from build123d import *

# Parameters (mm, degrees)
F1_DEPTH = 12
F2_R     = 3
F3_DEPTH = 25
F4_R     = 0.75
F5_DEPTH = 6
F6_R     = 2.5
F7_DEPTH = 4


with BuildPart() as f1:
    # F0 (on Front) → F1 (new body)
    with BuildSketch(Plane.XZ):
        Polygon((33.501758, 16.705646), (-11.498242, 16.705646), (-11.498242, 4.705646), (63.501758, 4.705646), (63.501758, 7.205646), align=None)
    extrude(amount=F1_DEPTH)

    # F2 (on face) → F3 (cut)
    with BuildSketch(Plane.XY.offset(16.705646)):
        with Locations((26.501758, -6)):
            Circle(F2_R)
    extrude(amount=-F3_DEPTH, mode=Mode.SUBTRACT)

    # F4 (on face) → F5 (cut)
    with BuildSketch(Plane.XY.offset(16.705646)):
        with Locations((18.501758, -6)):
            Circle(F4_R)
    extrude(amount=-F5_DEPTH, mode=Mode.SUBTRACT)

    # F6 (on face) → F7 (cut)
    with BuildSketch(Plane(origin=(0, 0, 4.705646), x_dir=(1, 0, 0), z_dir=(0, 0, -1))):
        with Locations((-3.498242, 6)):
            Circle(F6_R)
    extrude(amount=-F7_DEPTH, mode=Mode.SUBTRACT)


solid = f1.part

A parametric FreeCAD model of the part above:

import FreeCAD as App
import Part
import Sketcher
from FreeCAD import Vector
Q = App.Units.Quantity

doc = App.newDocument("Part")
params = doc.addObject("Spreadsheet::Sheet", "Params")
for row, (alias, value) in enumerate([
    ("sketch1_width", "45 mm"),
    ("sketch1_width2", "75 mm"),
    ("sketch1_height", "12 mm"),
    ("sketch1_height2", "2.5 mm"),
    ("pad1_length", "12 mm"),
    ("sketch2_diameter", "6 mm"),
    ("pocket1_length", "25 mm"),
    ("sketch3_diameter", "1.5 mm"),
    ("pocket2_length", "6 mm"),
    ("sketch4_diameter", "5 mm"),
    ("pocket3_length", "4 mm"),
], start=1):
    params.set(f"A{row}", alias)
    params.set(f"B{row}", "=" + value)
    params.setAlias(f"B{row}", alias)

body = doc.addObject("PartDesign::Body", "Body")

# Sketch on XZ plane
sketch1 = body.newObject("Sketcher::SketchObject", "Sketch")
sketch1.AttachmentSupport = (doc.getObject("XZ_Plane"), [""])
sketch1.MapMode = "FlatFace"
sketch1.addGeometry(Part.LineSegment(Vector(33.5, 16.7, 0), Vector(-11.5, 16.7, 0)), False)
sketch1.addGeometry(Part.LineSegment(Vector(-11.5, 16.7, 0), Vector(-11.5, 4.7, 0)), False)
sketch1.addGeometry(Part.LineSegment(Vector(-11.5, 4.7, 0), Vector(63.5, 4.7, 0)), False)
sketch1.addGeometry(Part.LineSegment(Vector(63.5, 4.7, 0), Vector(63.5, 7.2, 0)), False)
sketch1.addGeometry(Part.LineSegment(Vector(63.5, 7.2, 0), Vector(33.5, 16.7, 0)), False)
sketch1.addConstraint(Sketcher.Constraint("Coincident", 0, 2, 1, 1))
sketch1.addConstraint(Sketcher.Constraint("Coincident", 1, 2, 2, 1))
sketch1.addConstraint(Sketcher.Constraint("Coincident", 2, 2, 3, 1))
sketch1.addConstraint(Sketcher.Constraint("Coincident", 3, 2, 4, 1))
sketch1.addConstraint(Sketcher.Constraint("Coincident", 4, 2, 0, 1))
sketch1.addConstraint(Sketcher.Constraint("Horizontal", 0))
sketch1.addConstraint(Sketcher.Constraint("Vertical", 1))
sketch1.addConstraint(Sketcher.Constraint("Horizontal", 2))
sketch1.addConstraint(Sketcher.Constraint("Vertical", 3))
sketch1.addConstraint(Sketcher.Constraint("DistanceX", 0, 2, 0, 1, Q("45 mm")))
sketch1.addConstraint(Sketcher.Constraint("DistanceX", 2, 1, 2, 2, Q("75 mm")))
sketch1.addConstraint(Sketcher.Constraint("DistanceY", 1, 2, 1, 1, Q("12 mm")))
sketch1.addConstraint(Sketcher.Constraint("DistanceY", 3, 1, 3, 2, Q("2.5 mm")))
sketch1.addConstraint(Sketcher.Constraint("DistanceX", -1, 1, 2, 2, Q("63.501758 mm")))
sketch1.addConstraint(Sketcher.Constraint("DistanceY", -1, 1, 0, 2, Q("16.705646 mm")))
sketch1.setExpression("Constraints[9]", "Params.sketch1_width")
sketch1.setExpression("Constraints[10]", "Params.sketch1_width2")
sketch1.setExpression("Constraints[11]", "Params.sketch1_height")
sketch1.setExpression("Constraints[12]", "Params.sketch1_height2")
pad1 = body.newObject("PartDesign::Pad", "Pad")
pad1.Profile = sketch1
pad1.setExpression("Length", "Params.pad1_length")

# Sketch on XY plane
sketch2 = body.newObject("Sketcher::SketchObject", "Sketch001")
sketch2.AttachmentSupport = (doc.getObject("XY_Plane"), [""])
sketch2.MapMode = "FlatFace"
sketch2.AttachmentOffset = App.Placement(Vector(0, 0, 16.705646), App.Rotation())
sketch2.addGeometry(Part.Circle(Vector(26.5, -6, 0), Vector(0, 0, 1), 3), False)
sketch2.addConstraint(Sketcher.Constraint("Diameter", 0, Q("6 mm")))
sketch2.addConstraint(Sketcher.Constraint("DistanceY", 0, 3, -1, 1, Q("6 mm")))
sketch2.addConstraint(Sketcher.Constraint("DistanceX", -1, 1, 0, 3, Q("26.501758 mm")))
sketch2.setExpression("Constraints[0]", "Params.sketch2_diameter")
pocket1 = body.newObject("PartDesign::Pocket", "Pocket")
pocket1.Profile = sketch2
pocket1.setExpression("Length", "Params.pocket1_length")

# Sketch on XY plane
sketch3 = body.newObject("Sketcher::SketchObject", "Sketch002")
sketch3.AttachmentSupport = (doc.getObject("XY_Plane"), [""])
sketch3.MapMode = "FlatFace"
sketch3.AttachmentOffset = App.Placement(Vector(0, 0, 16.705646), App.Rotation())
sketch3.addGeometry(Part.Circle(Vector(18.5, -6, 0), Vector(0, 0, 1), 0.8), False)
sketch3.addConstraint(Sketcher.Constraint("Diameter", 0, Q("1.5 mm")))
sketch3.addConstraint(Sketcher.Constraint("DistanceY", 0, 3, -1, 1, Q("6 mm")))
sketch3.addConstraint(Sketcher.Constraint("DistanceX", -1, 1, 0, 3, Q("18.501758 mm")))
sketch3.setExpression("Constraints[0]", "Params.sketch3_diameter")
pocket2 = body.newObject("PartDesign::Pocket", "Pocket001")
pocket2.Profile = sketch3
pocket2.setExpression("Length", "Params.pocket2_length")

# Sketch on XY plane
sketch4 = body.newObject("Sketcher::SketchObject", "Sketch003")
sketch4.AttachmentSupport = (doc.getObject("XY_Plane"), [""])
sketch4.MapMode = "FlatFace"
sketch4.AttachmentOffset = App.Placement(Vector(0, 0, 4.705646), App.Rotation())
sketch4.addGeometry(Part.Circle(Vector(-3.5, -6, 0), Vector(0, 0, 1), 2.5), False)
sketch4.addConstraint(Sketcher.Constraint("Diameter", 0, Q("5 mm")))
sketch4.addConstraint(Sketcher.Constraint("DistanceY", 0, 3, -1, 1, Q("6 mm")))
sketch4.addConstraint(Sketcher.Constraint("DistanceX", 0, 3, -1, 1, Q("3.498242 mm")))
sketch4.setExpression("Constraints[0]", "Params.sketch4_diameter")
pocket3 = body.newObject("PartDesign::Pocket", "Pocket002")
pocket3.Profile = sketch4
pocket3.setExpression("Length", "Params.pocket3_length")
pocket3.Reversed = True

doc.recompute()
